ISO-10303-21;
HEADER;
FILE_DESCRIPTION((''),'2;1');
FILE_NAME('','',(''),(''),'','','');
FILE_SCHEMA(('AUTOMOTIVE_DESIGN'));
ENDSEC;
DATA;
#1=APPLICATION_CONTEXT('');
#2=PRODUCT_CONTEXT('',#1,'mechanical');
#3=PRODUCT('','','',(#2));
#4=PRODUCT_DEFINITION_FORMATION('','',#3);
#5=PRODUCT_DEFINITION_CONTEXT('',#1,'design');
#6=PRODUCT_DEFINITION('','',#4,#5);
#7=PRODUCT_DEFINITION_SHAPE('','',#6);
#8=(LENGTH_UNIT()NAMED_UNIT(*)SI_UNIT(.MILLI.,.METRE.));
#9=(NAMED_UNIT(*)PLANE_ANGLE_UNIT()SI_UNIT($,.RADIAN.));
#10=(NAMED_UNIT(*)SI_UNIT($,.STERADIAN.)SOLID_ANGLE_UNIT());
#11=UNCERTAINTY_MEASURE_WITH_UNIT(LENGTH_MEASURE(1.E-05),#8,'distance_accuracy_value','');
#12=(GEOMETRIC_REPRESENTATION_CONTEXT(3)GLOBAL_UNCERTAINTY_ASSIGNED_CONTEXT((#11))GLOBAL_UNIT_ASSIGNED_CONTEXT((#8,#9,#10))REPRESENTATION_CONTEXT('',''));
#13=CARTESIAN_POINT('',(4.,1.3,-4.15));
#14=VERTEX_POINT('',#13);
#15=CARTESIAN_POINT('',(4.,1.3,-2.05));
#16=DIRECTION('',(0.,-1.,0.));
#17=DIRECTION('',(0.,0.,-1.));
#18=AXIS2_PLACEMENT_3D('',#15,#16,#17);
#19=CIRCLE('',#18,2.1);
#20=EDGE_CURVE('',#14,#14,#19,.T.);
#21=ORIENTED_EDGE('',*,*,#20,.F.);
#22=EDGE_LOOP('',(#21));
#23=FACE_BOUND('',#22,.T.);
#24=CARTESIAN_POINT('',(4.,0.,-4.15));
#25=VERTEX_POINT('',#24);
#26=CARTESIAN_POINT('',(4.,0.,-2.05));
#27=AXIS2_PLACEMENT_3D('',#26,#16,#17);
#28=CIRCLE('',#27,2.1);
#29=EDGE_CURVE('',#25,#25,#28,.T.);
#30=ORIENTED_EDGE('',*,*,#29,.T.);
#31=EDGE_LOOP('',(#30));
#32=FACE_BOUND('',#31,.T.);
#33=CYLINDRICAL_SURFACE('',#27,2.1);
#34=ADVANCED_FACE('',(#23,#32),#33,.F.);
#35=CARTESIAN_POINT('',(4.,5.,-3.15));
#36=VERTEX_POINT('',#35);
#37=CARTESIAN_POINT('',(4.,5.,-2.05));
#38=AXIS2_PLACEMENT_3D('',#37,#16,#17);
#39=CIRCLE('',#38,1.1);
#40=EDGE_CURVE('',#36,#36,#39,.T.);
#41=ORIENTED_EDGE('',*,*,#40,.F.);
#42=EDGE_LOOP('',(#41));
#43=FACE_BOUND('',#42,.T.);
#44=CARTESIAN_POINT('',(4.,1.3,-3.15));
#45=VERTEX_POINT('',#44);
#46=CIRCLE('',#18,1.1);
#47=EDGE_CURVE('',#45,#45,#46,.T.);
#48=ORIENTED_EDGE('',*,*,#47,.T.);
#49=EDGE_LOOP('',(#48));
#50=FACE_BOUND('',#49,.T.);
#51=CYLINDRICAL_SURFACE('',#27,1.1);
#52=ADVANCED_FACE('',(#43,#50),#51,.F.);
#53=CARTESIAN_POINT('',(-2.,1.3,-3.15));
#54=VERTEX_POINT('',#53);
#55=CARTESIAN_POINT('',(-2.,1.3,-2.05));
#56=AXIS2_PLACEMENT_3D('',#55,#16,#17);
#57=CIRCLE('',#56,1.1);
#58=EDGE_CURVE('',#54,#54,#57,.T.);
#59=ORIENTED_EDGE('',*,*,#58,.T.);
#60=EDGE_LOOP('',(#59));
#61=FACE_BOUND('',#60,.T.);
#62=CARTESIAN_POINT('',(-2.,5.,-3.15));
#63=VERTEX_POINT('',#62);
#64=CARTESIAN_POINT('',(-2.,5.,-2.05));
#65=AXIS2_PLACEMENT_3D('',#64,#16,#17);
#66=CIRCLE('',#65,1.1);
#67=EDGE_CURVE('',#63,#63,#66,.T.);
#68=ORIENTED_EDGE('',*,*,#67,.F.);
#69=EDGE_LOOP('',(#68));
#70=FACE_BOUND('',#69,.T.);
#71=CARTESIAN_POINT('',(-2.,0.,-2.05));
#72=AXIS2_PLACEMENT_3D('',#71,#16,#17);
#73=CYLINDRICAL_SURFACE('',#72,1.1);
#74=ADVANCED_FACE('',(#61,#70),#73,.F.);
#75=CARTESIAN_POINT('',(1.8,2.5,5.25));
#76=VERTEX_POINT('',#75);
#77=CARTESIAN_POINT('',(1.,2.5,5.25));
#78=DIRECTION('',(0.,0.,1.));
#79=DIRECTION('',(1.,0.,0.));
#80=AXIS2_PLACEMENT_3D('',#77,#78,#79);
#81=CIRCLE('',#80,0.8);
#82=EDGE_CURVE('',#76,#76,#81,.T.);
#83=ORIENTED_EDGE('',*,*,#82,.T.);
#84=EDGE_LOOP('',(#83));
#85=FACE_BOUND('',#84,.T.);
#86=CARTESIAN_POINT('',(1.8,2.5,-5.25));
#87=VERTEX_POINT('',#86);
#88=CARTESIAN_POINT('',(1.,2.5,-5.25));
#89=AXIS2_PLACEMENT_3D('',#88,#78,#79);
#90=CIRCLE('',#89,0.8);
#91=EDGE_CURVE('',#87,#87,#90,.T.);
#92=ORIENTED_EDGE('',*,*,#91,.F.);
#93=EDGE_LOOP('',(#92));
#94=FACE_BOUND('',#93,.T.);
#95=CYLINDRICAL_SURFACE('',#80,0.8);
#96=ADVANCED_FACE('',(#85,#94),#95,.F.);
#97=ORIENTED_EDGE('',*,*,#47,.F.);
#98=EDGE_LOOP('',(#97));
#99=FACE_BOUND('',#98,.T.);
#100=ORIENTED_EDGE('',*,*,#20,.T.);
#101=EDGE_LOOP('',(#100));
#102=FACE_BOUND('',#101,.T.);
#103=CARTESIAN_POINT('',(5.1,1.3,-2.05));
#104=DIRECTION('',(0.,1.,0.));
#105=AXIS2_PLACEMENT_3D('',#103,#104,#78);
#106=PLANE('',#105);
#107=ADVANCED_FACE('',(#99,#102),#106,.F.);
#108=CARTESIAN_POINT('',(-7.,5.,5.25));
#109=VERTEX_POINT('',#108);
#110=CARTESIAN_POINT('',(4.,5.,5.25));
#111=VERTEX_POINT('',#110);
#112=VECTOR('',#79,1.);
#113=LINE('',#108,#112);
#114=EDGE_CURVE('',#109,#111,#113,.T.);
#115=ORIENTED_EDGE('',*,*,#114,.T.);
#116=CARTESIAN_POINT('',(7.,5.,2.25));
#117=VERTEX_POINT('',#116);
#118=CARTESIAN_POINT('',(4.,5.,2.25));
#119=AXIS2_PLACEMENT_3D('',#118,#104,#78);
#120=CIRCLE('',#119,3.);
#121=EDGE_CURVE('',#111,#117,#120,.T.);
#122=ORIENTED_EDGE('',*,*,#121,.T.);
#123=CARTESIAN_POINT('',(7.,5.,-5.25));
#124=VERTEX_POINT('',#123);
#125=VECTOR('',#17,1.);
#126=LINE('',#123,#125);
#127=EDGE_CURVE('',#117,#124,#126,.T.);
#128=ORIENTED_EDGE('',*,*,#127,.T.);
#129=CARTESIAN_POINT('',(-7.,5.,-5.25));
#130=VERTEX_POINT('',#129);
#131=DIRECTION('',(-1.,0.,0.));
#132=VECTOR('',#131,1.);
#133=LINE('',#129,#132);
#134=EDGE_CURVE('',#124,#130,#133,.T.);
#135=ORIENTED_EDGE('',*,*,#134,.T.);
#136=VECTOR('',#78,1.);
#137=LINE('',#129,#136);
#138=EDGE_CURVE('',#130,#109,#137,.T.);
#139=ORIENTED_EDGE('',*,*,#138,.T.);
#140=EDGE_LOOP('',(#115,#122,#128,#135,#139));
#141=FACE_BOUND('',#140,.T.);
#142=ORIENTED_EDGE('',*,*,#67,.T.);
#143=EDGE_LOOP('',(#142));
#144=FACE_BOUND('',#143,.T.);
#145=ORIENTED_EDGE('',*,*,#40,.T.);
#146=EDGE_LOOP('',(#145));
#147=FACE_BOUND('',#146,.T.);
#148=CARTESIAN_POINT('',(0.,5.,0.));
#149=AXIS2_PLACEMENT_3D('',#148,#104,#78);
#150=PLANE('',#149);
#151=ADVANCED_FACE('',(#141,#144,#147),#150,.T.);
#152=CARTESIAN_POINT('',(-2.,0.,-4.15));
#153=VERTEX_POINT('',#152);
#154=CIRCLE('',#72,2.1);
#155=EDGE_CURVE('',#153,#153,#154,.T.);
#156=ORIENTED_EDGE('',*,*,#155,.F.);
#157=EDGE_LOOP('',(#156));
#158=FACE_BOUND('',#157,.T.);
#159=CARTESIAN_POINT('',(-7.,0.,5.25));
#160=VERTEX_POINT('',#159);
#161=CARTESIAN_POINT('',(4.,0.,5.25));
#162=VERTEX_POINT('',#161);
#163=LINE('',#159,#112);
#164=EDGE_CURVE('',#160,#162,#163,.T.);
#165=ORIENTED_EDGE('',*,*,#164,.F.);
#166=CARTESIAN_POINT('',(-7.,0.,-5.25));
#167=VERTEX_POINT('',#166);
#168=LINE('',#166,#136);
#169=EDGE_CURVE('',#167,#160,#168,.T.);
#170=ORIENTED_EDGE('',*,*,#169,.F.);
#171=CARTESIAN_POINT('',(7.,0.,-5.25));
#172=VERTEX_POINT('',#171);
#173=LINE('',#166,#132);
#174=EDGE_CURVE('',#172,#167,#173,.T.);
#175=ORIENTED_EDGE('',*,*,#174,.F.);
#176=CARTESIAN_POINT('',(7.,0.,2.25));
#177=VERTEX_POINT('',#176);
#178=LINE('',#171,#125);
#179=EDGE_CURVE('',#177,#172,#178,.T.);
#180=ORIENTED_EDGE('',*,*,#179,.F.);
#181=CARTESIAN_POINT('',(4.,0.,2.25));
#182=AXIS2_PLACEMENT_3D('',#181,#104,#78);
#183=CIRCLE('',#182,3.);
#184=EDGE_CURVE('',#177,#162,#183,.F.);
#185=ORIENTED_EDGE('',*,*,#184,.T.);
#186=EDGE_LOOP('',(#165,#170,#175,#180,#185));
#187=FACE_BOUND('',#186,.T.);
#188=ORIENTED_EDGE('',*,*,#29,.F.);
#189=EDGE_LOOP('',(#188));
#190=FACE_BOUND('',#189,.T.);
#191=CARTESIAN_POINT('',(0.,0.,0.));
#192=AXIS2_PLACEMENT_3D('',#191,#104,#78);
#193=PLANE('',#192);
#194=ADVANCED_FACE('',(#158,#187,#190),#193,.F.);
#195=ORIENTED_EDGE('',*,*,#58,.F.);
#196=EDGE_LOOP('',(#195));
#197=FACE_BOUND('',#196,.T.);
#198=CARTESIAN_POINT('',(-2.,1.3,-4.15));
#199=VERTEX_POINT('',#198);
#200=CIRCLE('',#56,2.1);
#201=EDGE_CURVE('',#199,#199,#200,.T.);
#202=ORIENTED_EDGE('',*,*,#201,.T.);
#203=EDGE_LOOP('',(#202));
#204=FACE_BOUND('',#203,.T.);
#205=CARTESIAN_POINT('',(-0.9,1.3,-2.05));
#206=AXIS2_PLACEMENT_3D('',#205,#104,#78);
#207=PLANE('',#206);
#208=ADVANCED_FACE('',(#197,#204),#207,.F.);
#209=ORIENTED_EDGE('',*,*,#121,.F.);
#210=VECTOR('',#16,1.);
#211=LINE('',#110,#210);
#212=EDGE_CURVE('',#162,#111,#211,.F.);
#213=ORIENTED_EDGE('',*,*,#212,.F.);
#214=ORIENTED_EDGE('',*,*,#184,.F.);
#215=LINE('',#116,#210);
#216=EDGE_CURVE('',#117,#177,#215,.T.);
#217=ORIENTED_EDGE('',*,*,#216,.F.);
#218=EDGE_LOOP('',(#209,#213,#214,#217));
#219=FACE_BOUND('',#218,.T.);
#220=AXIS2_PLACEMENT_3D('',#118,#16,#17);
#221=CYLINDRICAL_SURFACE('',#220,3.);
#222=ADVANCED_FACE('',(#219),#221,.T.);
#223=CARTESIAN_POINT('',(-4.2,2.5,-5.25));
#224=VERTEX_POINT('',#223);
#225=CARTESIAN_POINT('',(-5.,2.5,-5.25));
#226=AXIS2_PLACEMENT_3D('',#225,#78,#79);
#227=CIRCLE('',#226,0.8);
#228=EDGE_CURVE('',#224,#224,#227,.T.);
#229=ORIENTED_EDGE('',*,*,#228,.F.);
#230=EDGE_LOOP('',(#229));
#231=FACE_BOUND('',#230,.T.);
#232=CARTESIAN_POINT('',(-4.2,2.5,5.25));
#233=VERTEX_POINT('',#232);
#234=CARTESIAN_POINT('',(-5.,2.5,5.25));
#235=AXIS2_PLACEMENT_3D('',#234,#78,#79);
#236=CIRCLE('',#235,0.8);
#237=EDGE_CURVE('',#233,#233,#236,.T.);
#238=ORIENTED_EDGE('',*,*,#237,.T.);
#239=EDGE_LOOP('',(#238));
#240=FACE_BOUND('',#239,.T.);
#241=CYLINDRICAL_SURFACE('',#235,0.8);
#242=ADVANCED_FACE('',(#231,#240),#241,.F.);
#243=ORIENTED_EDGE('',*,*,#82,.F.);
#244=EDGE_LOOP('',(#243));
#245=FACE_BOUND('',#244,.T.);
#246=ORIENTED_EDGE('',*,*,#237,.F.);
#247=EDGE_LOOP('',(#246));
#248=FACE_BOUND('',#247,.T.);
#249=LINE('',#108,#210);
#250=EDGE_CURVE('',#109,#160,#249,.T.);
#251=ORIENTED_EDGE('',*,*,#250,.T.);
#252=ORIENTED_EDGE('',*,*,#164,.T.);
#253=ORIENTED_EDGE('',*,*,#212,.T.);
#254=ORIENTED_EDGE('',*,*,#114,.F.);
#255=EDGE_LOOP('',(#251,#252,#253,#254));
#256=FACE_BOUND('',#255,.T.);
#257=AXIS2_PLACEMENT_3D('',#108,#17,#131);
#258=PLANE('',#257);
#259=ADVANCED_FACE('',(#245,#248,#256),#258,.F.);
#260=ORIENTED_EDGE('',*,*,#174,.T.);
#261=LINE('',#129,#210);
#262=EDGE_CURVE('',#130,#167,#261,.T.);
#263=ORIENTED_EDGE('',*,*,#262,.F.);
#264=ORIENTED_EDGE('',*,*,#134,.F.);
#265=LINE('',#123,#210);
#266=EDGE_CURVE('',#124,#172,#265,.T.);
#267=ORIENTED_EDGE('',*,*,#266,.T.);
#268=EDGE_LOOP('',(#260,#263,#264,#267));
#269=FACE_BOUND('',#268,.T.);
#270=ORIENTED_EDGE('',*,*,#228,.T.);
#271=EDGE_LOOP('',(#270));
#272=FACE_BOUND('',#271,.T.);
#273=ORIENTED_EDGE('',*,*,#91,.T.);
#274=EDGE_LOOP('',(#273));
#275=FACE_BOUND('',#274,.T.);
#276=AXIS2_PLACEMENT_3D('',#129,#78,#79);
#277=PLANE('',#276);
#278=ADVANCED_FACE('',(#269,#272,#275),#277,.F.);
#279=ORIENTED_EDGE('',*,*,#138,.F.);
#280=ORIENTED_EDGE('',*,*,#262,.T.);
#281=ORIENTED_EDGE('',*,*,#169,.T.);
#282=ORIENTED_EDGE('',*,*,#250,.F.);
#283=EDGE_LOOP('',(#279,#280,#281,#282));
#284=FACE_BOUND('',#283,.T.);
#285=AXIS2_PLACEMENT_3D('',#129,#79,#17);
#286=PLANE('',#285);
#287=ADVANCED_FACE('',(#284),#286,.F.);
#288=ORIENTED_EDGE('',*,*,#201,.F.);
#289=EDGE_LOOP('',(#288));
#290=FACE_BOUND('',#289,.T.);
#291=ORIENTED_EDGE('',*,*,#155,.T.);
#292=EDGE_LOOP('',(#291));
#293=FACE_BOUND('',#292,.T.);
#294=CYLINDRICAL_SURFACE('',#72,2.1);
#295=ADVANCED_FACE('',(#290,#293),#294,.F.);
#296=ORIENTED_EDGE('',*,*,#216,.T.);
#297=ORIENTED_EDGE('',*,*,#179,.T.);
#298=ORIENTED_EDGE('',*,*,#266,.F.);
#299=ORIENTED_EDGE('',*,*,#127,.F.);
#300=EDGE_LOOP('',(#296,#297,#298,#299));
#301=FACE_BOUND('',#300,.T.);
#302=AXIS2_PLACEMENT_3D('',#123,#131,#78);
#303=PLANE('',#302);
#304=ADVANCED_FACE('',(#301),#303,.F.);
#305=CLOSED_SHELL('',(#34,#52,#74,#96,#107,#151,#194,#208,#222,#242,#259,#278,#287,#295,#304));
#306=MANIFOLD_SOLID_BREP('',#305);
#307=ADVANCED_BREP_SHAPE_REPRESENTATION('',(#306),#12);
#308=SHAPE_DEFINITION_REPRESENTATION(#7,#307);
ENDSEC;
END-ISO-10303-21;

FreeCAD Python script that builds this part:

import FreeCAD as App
import Part
import Sketcher
Q = App.Units.Quantity


def edges_at(feature, points):
    """Names of the edges that pass closest to the given points."""
    edges = feature.Shape.Edges
    near = lambda p: min(range(len(edges)), key=lambda i: edges[i].distToShape(Part.Vertex(*p))[0])
    return sorted({f"Edge{near(p) + 1}" for p in points})


def add_polygon(sketch, points):
    """Adds a closed chain of lines whose ends are joined by coincident constraints."""
    first, n = sketch.GeometryCount, len(points)
    for a, b in zip(points, points[1:] + points[:1]):
        sketch.addGeometry(Part.LineSegment(App.Vector(*a, 0), App.Vector(*b, 0)), False)
    for i in range(n):
        sketch.addConstraint(Sketcher.Constraint("Coincident", first + i, 2, first + (i + 1) % n, 1))

doc = App.newDocument("Part")
params = doc.addObject("Spreadsheet::Sheet", "Params")
for row, (alias, value) in enumerate([
    ("sketch1_width", "14 mm"),
    ("sketch1_height", "10.5 mm"),
    ("pad1_length", "5 mm"),
    ("sketch2_diameter", "2.2 mm"),
    ("hole_diameter", "2.2 mm"),
    ("hole_cbore_diameter", "4.2 mm"),
    ("hole_cbore_depth", "1.3 mm"),
    ("fillet_radius", "3 mm"),
    ("sketch3_diameter", "1.6 mm"),
    ("hole2_diameter", "1.6 mm"),
], start=1):
    params.set(f"A{row}", alias)
    params.set(f"B{row}", "=" + value)
    params.setAlias(f"B{row}", alias)

body = doc.addObject("PartDesign::Body", "Body")

sketch1 = body.newObject("Sketcher::SketchObject", "Sketch")
sketch1.AttachmentSupport = (doc.getObject("XZ_Plane"), [""])
sketch1.MapMode = "FlatFace"
add_polygon(sketch1, [(-7, -5), (-7, 5), (7, 5), (7, -5)])
sketch1.addConstraint([
    Sketcher.Constraint("Vertical", 0),
    Sketcher.Constraint("Horizontal", 1),
    Sketcher.Constraint("Vertical", 2),
    Sketcher.Constraint("Horizontal", 3),
    Sketcher.Constraint("Symmetric", 0, 2, 2, 2, -1, 1),
    Sketcher.Constraint("DistanceX", 1, 1, 1, 2, Q("14 mm")),
    Sketcher.Constraint("DistanceY", 0, 1, 0, 2, Q("10.5 mm")),
])
sketch1.setExpression("Constraints[9]", "Params.sketch1_width")
sketch1.setExpression("Constraints[10]", "Params.sketch1_height")
pad1 = body.newObject("PartDesign::Pad", "Pad")
pad1.Profile = sketch1
pad1.setExpression("Length", "Params.pad1_length")
pad1.Reversed = True

sketch2 = body.newObject("Sketcher::SketchObject", "Sketch001")
sketch2.AttachmentSupport = (doc.getObject("XZ_Plane"), [""])
sketch2.MapMode = "FlatFace"
sketch2.addGeometry([
    Part.Circle(App.Vector(-2, -2, 0), App.Vector(0, 0, 1), 1.1),
    Part.Circle(App.Vector(4, -2, 0), App.Vector(0, 0, 1), 1.1),
], False)
sketch2.addConstraint([
    Sketcher.Constraint("Equal", 0, 1),
    Sketcher.Constraint("Horizontal", 0, 3, 1, 3),
    Sketcher.Constraint("Diameter", 0, Q("2.2 mm")),
    Sketcher.Constraint("DistanceX", 0, 3, -1, 1, Q("2 mm")),
    Sketcher.Constraint("DistanceX", -1, 1, 1, 3, Q("4 mm")),
    Sketcher.Constraint("DistanceY", 0, 3, -1, 1, Q("2.05 mm")),
])
sketch2.setExpression("Constraints[2]", "Params.sketch2_diameter")
doc.recompute()
hole = body.newObject("PartDesign::Hole", "Hole")
hole.Profile = sketch2
hole.ThreadType = "None"
hole.setExpression("Diameter", "Params.hole_diameter")
hole.DepthType = "ThroughAll"
hole.HoleCutType = "Counterbore"
hole.setExpression("HoleCutDiameter", "Params.hole_cbore_diameter")
hole.setExpression("HoleCutDepth", "Params.hole_cbore_depth")
doc.recompute()

fillet = body.newObject("PartDesign::Fillet", "Fillet")
fillet.Base = (hole, edges_at(hole, [(7, 2.5, 5.25)]))
fillet.setExpression("Radius", "Params.fillet_radius")

sketch3 = body.newObject("Sketcher::SketchObject", "Sketch002")
sketch3.AttachmentSupport = (doc.getObject("XY_Plane"), [""])
sketch3.MapMode = "FlatFace"
sketch3.AttachmentOffset = App.Placement(App.Vector(0, 0, 5.25), App.Rotation())
sketch3.addGeometry([
    Part.Circle(App.Vector(-5, 2.5, 0), App.Vector(0, 0, 1), 0.8),
    Part.Circle(App.Vector(1, 2.5, 0), App.Vector(0, 0, 1), 0.8),
], False)
sketch3.addConstraint([
    Sketcher.Constraint("Equal", 0, 1),
    Sketcher.Constraint("Horizontal", 0, 3, 1, 3),
    Sketcher.Constraint("Diameter", 0, Q("1.6 mm")),
    Sketcher.Constraint("DistanceX", 0, 3, -1, 1, Q("5 mm")),
    Sketcher.Constraint("DistanceX", -1, 1, 1, 3, Q("1 mm")),
    Sketcher.Constraint("DistanceY", -1, 1, 0, 3, Q("2.5 mm")),
])
sketch3.setExpression("Constraints[2]", "Params.sketch3_diameter")
doc.recompute()
hole2 = body.newObject("PartDesign::Hole", "Hole001")
hole2.Profile = sketch3
hole2.ThreadType = "None"
hole2.setExpression("Diameter", "Params.hole2_diameter")
hole2.DepthType = "ThroughAll"

doc.recompute()
